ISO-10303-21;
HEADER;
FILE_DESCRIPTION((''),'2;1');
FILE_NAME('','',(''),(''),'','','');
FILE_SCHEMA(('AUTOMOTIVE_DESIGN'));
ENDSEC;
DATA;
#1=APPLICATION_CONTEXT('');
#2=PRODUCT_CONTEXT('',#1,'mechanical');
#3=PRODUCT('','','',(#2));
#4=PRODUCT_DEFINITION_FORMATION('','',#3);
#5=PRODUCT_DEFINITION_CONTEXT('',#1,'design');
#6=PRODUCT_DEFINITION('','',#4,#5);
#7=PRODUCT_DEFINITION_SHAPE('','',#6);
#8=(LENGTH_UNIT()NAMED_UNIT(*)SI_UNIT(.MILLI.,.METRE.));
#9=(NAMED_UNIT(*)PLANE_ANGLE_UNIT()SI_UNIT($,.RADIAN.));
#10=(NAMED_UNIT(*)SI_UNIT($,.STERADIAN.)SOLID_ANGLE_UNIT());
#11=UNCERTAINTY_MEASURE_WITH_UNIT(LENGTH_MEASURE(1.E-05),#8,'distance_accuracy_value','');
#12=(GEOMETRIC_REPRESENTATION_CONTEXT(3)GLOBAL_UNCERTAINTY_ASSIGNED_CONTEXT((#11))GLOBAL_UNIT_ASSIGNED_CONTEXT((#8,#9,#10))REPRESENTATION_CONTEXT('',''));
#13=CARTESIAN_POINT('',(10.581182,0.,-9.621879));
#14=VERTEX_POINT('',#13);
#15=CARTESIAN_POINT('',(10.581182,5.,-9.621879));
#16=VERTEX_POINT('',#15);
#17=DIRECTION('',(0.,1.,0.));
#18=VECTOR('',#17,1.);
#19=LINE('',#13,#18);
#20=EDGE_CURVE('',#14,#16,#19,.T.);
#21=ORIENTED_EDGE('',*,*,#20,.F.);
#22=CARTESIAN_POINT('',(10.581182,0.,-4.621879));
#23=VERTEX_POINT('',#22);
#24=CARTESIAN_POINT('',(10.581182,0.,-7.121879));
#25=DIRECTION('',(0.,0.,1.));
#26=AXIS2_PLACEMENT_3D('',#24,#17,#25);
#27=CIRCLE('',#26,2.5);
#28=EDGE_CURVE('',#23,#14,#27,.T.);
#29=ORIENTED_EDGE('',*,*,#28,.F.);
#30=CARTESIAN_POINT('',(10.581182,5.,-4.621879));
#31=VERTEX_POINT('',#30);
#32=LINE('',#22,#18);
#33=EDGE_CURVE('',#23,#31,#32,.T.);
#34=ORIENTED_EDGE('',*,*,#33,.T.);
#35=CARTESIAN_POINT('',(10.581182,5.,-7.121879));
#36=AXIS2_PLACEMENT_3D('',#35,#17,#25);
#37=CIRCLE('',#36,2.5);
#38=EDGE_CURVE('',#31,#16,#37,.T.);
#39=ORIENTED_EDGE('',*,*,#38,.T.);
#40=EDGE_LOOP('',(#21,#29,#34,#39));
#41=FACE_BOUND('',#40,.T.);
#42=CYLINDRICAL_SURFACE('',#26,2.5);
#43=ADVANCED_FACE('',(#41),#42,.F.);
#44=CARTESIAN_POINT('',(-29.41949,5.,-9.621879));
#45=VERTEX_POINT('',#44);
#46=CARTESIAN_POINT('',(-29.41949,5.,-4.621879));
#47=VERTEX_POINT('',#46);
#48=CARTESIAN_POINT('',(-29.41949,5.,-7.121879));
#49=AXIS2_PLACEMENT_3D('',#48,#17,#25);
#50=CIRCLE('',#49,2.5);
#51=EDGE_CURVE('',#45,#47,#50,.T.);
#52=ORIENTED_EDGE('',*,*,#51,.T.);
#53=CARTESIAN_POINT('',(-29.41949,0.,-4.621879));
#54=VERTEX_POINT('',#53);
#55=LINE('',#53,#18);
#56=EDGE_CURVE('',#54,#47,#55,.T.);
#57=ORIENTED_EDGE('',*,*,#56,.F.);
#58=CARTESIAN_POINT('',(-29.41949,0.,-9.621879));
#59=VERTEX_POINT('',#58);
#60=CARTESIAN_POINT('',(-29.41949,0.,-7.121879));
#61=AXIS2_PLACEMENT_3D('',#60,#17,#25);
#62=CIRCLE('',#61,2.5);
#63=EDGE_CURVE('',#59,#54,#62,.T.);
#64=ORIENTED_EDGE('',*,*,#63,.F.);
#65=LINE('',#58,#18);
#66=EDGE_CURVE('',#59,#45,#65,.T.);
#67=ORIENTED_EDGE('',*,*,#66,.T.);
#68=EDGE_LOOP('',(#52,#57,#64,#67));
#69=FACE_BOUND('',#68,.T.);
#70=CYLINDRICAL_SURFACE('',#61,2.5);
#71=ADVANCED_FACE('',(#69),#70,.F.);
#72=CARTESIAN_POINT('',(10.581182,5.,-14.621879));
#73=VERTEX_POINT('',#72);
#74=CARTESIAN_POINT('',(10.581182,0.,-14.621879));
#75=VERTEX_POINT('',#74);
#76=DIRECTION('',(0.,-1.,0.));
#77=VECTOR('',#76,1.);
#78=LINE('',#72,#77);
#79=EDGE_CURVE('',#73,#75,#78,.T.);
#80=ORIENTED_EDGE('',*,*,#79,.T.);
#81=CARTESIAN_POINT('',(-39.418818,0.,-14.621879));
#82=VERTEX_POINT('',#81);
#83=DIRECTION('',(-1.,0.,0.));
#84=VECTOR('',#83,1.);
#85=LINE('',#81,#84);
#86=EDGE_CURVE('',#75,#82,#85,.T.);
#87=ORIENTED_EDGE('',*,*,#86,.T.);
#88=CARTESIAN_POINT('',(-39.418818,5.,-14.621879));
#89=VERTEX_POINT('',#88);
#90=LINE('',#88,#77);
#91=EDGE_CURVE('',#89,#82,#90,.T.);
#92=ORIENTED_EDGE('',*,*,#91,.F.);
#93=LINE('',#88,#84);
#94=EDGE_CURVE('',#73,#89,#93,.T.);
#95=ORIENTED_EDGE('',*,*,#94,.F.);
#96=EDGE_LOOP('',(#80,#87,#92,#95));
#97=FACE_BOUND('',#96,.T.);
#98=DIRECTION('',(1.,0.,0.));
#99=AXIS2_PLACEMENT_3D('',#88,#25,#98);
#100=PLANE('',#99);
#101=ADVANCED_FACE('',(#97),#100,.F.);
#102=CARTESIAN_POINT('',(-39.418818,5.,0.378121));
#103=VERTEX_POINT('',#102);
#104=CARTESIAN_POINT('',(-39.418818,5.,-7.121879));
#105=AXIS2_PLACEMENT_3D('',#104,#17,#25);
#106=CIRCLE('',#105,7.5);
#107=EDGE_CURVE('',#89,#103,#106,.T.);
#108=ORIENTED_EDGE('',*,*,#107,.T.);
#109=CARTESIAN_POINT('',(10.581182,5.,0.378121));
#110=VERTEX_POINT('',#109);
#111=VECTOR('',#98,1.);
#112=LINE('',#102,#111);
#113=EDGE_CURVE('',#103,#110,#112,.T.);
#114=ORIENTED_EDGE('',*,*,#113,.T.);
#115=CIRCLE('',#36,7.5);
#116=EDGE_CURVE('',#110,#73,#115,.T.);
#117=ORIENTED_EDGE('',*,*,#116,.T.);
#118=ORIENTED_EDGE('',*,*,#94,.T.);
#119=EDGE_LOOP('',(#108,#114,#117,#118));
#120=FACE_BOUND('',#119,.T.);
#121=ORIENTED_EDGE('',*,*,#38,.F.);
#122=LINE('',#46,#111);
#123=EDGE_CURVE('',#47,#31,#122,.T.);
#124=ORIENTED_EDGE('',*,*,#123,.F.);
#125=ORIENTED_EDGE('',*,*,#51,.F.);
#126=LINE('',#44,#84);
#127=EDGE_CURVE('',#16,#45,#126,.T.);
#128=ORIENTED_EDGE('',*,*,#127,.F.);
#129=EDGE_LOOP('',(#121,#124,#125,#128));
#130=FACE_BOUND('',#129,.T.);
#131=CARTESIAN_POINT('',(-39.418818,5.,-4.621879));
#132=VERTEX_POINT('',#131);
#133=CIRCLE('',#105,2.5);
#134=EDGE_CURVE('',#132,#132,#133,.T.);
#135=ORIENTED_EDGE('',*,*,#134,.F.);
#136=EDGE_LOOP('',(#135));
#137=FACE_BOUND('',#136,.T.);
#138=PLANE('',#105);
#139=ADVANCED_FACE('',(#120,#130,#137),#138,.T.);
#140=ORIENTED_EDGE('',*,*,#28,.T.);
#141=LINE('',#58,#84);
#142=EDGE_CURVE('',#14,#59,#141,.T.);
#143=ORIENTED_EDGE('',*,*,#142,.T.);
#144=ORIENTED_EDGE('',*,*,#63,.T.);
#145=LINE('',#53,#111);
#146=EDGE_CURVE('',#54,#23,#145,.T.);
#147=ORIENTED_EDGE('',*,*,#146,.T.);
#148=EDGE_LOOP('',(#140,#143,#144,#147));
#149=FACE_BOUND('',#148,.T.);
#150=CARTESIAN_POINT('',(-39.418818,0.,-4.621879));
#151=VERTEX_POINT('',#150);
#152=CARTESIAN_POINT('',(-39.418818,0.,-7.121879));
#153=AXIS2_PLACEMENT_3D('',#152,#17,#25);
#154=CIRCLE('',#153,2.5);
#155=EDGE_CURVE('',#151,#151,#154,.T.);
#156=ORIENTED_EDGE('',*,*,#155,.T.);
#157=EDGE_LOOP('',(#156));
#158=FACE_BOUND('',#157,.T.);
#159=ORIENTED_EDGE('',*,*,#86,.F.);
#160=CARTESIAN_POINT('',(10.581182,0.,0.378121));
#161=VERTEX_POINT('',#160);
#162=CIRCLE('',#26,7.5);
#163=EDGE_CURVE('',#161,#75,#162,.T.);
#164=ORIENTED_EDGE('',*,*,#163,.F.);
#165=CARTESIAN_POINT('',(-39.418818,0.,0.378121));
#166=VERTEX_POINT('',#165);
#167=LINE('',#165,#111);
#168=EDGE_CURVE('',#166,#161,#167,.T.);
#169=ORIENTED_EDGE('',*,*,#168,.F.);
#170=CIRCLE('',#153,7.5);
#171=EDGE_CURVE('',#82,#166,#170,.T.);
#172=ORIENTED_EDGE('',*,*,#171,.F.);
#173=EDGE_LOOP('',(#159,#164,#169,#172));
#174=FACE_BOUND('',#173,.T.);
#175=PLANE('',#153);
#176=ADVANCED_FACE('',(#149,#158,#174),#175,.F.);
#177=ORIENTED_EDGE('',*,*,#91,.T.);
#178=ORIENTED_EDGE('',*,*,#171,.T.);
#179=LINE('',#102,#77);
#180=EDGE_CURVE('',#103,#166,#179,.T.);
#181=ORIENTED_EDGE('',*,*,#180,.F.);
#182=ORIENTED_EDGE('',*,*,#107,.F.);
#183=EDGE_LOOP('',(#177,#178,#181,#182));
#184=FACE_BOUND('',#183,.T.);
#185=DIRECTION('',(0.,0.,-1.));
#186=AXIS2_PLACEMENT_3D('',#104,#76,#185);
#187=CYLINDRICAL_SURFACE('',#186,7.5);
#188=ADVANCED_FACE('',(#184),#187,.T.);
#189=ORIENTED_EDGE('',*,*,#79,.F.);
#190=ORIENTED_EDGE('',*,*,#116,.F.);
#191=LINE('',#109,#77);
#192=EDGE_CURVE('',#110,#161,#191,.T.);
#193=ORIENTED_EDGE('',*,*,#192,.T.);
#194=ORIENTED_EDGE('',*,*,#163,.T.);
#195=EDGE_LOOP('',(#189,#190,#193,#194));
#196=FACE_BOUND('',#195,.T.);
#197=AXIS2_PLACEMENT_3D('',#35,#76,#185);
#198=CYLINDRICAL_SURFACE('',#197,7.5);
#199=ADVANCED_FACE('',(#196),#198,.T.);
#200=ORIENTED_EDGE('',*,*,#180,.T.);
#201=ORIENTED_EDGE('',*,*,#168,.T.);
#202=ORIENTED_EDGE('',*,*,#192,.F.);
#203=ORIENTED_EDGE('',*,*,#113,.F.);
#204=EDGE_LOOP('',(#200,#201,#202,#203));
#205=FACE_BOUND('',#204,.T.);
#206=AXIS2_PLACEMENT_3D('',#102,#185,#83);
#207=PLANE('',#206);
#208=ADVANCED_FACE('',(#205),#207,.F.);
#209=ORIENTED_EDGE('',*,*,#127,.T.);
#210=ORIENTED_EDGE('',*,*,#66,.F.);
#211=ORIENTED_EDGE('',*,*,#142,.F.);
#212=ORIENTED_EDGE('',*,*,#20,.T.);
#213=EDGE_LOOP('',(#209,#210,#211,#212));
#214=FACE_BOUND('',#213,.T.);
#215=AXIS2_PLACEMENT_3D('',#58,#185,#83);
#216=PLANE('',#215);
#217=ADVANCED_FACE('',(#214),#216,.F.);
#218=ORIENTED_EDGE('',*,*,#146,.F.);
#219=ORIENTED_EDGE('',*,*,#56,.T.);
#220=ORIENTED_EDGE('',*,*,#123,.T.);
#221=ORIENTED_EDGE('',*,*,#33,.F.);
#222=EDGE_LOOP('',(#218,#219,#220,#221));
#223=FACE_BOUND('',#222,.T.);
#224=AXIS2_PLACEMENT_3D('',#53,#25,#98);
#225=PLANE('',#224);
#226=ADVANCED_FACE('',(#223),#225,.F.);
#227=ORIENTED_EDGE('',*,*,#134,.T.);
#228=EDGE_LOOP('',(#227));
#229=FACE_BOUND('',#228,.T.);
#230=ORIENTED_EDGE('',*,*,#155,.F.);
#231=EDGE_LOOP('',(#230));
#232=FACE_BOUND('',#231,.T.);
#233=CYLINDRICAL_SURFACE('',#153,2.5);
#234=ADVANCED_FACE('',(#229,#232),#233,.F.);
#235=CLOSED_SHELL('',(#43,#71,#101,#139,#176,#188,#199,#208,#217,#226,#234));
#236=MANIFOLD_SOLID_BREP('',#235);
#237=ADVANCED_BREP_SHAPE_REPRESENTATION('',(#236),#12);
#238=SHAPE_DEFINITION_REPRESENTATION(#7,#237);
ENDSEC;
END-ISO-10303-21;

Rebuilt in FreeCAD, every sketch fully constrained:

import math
import FreeCAD as App
import Part
import Sketcher
from FreeCAD import Vector

doc = App.newDocument("Part")
params = doc.addObject("Spreadsheet::Sheet", "Params")
for row, (alias, value) in enumerate([
    ("sketch1_radius", "7.5 mm"),
    ("sketch1_width", "50 mm"),
    ("pad1_length", "5 mm"),
    ("sketch2_diameter", "5 mm"),
    ("pocket1_length", "5 mm"),
], start=1):
    params.set(f"A{row}", alias)
    params.set(f"B{row}", "=" + value)
    params.setAlias(f"B{row}", alias)

body = doc.addObject("PartDesign::Body", "Body")

# Sketch on XZ plane
sketch1 = body.newObject("Sketcher::SketchObject", "Sketch")
sketch1.AttachmentSupport = (doc.getObject("XZ_Plane"), [""])
sketch1.MapMode = "FlatFace"
sketch1.addGeometry(Part.LineSegment(Vector(11, -15, 0), Vector(-39, -15, 0)), False)
sketch1.addGeometry(Part.ArcOfCircle(Part.Circle(Vector(-39, -7, 0), Vector(0, 0, 1), 8), math.radians(90), math.radians(270)), False)
sketch1.addGeometry(Part.LineSegment(Vector(-39, 0, 0), Vector(11, 0, 0)), False)
sketch1.addGeometry(Part.ArcOfCircle(Part.Circle(Vector(11, -7, 0), Vector(0, 0, 1), 8), math.radians(-90), math.radians(90)), False)
sketch1.addConstraint(Sketcher.Constraint("Tangent", 0, 2, 1, 2))
sketch1.addConstraint(Sketcher.Constraint("Tangent", 1, 1, 2, 1))
sketch1.addConstraint(Sketcher.Constraint("Tangent", 2, 2, 3, 2))
sketch1.addConstraint(Sketcher.Constraint("Tangent", 3, 1, 0, 1))
sketch1.addConstraint(Sketcher.Constraint("Horizontal", 0))
sketch1.addConstraint(Sketcher.Constraint("Horizontal", 2))
sketch1.addConstraint(Sketcher.Constraint("Radius", 1, 7.5))
sketch1.addConstraint(Sketcher.Constraint("DistanceX", 0, 2, 0, 1, 50.0))
sketch1.addConstraint(Sketcher.Constraint("DistanceY", 1, 3, -1, 1, 7.121879))
sketch1.addConstraint(Sketcher.Constraint("DistanceX", 1, 3, -1, 1, 39.418818))
sketch1.setExpression("Constraints[6]", "Params.sketch1_radius")
sketch1.setExpression("Constraints[7]", "Params.sketch1_width")
pad1 = body.newObject("PartDesign::Pad", "Pad")
pad1.Profile = sketch1
pad1.setExpression("Length", "Params.pad1_length")
pad1.Reversed = True

# Sketch on XZ plane
sketch2 = body.newObject("Sketcher::SketchObject", "Sketch001")
sketch2.AttachmentSupport = (doc.getObject("XZ_Plane"), [""])
sketch2.MapMode = "FlatFace"
sketch2.AttachmentOffset = App.Placement(Vector(0, 0, -5), App.Rotation())
sketch2.addGeometry(Part.Circle(Vector(-39.4, -7.1, 0), Vector(0, 0, 1), 2.5), False)
sketch2.addGeometry(Part.LineSegment(Vector(10.6, -9.6, 0), Vector(-29.4, -9.6, 0)), False)
sketch2.addGeometry(Part.ArcOfCircle(Part.Circle(Vector(-29.4, -7.1, 0), Vector(0, 0, 1), 2.5), math.radians(90), math.radians(270)), False)
sketch2.addGeometry(Part.LineSegment(Vector(-29.4, -4.6, 0), Vector(10.6, -4.6, 0)), False)
sketch2.addGeometry(Part.ArcOfCircle(Part.Circle(Vector(10.6, -7.1, 0), Vector(0, 0, 1), 2.5), math.radians(-90), math.radians(90)), False)
sketch2.addConstraint(Sketcher.Constraint("Tangent", 1, 2, 2, 2))
sketch2.addConstraint(Sketcher.Constraint("Tangent", 2, 1, 3, 1))
sketch2.addConstraint(Sketcher.Constraint("Tangent", 3, 2, 4, 2))
sketch2.addConstraint(Sketcher.Constraint("Tangent", 4, 1, 1, 1))
sketch2.addConstraint(Sketcher.Constraint("Horizontal", 1))
sketch2.addConstraint(Sketcher.Constraint("Horizontal", 3))
sketch2.addConstraint(Sketcher.Constraint("Equal", 0, 2))
sketch2.addConstraint(Sketcher.Constraint("Horizontal", 0, 3, 2, 3))
sketch2.addConstraint(Sketcher.Constraint("Diameter", 0, 5.0))
sketch2.addConstraint(Sketcher.Constraint("DistanceX", 0, 3, 4, 3, 50.0))
sketch2.addConstraint(Sketcher.Constraint("DistanceX", 1, 2, 1, 1, 40.000673))
sketch2.addConstraint(Sketcher.Constraint("DistanceY", 0, 3, -1, 1, 7.121879))
sketch2.addConstraint(Sketcher.Constraint("DistanceX", 2, 3, -1, 1, 29.41949))
sketch2.setExpression("Constraints[8]", "Params.sketch2_diameter")
pocket1 = body.newObject("PartDesign::Pocket", "Pocket")
pocket1.Profile = sketch2
pocket1.setExpression("Length", "Params.pocket1_length")
pocket1.Reversed = True

doc.recompute()
